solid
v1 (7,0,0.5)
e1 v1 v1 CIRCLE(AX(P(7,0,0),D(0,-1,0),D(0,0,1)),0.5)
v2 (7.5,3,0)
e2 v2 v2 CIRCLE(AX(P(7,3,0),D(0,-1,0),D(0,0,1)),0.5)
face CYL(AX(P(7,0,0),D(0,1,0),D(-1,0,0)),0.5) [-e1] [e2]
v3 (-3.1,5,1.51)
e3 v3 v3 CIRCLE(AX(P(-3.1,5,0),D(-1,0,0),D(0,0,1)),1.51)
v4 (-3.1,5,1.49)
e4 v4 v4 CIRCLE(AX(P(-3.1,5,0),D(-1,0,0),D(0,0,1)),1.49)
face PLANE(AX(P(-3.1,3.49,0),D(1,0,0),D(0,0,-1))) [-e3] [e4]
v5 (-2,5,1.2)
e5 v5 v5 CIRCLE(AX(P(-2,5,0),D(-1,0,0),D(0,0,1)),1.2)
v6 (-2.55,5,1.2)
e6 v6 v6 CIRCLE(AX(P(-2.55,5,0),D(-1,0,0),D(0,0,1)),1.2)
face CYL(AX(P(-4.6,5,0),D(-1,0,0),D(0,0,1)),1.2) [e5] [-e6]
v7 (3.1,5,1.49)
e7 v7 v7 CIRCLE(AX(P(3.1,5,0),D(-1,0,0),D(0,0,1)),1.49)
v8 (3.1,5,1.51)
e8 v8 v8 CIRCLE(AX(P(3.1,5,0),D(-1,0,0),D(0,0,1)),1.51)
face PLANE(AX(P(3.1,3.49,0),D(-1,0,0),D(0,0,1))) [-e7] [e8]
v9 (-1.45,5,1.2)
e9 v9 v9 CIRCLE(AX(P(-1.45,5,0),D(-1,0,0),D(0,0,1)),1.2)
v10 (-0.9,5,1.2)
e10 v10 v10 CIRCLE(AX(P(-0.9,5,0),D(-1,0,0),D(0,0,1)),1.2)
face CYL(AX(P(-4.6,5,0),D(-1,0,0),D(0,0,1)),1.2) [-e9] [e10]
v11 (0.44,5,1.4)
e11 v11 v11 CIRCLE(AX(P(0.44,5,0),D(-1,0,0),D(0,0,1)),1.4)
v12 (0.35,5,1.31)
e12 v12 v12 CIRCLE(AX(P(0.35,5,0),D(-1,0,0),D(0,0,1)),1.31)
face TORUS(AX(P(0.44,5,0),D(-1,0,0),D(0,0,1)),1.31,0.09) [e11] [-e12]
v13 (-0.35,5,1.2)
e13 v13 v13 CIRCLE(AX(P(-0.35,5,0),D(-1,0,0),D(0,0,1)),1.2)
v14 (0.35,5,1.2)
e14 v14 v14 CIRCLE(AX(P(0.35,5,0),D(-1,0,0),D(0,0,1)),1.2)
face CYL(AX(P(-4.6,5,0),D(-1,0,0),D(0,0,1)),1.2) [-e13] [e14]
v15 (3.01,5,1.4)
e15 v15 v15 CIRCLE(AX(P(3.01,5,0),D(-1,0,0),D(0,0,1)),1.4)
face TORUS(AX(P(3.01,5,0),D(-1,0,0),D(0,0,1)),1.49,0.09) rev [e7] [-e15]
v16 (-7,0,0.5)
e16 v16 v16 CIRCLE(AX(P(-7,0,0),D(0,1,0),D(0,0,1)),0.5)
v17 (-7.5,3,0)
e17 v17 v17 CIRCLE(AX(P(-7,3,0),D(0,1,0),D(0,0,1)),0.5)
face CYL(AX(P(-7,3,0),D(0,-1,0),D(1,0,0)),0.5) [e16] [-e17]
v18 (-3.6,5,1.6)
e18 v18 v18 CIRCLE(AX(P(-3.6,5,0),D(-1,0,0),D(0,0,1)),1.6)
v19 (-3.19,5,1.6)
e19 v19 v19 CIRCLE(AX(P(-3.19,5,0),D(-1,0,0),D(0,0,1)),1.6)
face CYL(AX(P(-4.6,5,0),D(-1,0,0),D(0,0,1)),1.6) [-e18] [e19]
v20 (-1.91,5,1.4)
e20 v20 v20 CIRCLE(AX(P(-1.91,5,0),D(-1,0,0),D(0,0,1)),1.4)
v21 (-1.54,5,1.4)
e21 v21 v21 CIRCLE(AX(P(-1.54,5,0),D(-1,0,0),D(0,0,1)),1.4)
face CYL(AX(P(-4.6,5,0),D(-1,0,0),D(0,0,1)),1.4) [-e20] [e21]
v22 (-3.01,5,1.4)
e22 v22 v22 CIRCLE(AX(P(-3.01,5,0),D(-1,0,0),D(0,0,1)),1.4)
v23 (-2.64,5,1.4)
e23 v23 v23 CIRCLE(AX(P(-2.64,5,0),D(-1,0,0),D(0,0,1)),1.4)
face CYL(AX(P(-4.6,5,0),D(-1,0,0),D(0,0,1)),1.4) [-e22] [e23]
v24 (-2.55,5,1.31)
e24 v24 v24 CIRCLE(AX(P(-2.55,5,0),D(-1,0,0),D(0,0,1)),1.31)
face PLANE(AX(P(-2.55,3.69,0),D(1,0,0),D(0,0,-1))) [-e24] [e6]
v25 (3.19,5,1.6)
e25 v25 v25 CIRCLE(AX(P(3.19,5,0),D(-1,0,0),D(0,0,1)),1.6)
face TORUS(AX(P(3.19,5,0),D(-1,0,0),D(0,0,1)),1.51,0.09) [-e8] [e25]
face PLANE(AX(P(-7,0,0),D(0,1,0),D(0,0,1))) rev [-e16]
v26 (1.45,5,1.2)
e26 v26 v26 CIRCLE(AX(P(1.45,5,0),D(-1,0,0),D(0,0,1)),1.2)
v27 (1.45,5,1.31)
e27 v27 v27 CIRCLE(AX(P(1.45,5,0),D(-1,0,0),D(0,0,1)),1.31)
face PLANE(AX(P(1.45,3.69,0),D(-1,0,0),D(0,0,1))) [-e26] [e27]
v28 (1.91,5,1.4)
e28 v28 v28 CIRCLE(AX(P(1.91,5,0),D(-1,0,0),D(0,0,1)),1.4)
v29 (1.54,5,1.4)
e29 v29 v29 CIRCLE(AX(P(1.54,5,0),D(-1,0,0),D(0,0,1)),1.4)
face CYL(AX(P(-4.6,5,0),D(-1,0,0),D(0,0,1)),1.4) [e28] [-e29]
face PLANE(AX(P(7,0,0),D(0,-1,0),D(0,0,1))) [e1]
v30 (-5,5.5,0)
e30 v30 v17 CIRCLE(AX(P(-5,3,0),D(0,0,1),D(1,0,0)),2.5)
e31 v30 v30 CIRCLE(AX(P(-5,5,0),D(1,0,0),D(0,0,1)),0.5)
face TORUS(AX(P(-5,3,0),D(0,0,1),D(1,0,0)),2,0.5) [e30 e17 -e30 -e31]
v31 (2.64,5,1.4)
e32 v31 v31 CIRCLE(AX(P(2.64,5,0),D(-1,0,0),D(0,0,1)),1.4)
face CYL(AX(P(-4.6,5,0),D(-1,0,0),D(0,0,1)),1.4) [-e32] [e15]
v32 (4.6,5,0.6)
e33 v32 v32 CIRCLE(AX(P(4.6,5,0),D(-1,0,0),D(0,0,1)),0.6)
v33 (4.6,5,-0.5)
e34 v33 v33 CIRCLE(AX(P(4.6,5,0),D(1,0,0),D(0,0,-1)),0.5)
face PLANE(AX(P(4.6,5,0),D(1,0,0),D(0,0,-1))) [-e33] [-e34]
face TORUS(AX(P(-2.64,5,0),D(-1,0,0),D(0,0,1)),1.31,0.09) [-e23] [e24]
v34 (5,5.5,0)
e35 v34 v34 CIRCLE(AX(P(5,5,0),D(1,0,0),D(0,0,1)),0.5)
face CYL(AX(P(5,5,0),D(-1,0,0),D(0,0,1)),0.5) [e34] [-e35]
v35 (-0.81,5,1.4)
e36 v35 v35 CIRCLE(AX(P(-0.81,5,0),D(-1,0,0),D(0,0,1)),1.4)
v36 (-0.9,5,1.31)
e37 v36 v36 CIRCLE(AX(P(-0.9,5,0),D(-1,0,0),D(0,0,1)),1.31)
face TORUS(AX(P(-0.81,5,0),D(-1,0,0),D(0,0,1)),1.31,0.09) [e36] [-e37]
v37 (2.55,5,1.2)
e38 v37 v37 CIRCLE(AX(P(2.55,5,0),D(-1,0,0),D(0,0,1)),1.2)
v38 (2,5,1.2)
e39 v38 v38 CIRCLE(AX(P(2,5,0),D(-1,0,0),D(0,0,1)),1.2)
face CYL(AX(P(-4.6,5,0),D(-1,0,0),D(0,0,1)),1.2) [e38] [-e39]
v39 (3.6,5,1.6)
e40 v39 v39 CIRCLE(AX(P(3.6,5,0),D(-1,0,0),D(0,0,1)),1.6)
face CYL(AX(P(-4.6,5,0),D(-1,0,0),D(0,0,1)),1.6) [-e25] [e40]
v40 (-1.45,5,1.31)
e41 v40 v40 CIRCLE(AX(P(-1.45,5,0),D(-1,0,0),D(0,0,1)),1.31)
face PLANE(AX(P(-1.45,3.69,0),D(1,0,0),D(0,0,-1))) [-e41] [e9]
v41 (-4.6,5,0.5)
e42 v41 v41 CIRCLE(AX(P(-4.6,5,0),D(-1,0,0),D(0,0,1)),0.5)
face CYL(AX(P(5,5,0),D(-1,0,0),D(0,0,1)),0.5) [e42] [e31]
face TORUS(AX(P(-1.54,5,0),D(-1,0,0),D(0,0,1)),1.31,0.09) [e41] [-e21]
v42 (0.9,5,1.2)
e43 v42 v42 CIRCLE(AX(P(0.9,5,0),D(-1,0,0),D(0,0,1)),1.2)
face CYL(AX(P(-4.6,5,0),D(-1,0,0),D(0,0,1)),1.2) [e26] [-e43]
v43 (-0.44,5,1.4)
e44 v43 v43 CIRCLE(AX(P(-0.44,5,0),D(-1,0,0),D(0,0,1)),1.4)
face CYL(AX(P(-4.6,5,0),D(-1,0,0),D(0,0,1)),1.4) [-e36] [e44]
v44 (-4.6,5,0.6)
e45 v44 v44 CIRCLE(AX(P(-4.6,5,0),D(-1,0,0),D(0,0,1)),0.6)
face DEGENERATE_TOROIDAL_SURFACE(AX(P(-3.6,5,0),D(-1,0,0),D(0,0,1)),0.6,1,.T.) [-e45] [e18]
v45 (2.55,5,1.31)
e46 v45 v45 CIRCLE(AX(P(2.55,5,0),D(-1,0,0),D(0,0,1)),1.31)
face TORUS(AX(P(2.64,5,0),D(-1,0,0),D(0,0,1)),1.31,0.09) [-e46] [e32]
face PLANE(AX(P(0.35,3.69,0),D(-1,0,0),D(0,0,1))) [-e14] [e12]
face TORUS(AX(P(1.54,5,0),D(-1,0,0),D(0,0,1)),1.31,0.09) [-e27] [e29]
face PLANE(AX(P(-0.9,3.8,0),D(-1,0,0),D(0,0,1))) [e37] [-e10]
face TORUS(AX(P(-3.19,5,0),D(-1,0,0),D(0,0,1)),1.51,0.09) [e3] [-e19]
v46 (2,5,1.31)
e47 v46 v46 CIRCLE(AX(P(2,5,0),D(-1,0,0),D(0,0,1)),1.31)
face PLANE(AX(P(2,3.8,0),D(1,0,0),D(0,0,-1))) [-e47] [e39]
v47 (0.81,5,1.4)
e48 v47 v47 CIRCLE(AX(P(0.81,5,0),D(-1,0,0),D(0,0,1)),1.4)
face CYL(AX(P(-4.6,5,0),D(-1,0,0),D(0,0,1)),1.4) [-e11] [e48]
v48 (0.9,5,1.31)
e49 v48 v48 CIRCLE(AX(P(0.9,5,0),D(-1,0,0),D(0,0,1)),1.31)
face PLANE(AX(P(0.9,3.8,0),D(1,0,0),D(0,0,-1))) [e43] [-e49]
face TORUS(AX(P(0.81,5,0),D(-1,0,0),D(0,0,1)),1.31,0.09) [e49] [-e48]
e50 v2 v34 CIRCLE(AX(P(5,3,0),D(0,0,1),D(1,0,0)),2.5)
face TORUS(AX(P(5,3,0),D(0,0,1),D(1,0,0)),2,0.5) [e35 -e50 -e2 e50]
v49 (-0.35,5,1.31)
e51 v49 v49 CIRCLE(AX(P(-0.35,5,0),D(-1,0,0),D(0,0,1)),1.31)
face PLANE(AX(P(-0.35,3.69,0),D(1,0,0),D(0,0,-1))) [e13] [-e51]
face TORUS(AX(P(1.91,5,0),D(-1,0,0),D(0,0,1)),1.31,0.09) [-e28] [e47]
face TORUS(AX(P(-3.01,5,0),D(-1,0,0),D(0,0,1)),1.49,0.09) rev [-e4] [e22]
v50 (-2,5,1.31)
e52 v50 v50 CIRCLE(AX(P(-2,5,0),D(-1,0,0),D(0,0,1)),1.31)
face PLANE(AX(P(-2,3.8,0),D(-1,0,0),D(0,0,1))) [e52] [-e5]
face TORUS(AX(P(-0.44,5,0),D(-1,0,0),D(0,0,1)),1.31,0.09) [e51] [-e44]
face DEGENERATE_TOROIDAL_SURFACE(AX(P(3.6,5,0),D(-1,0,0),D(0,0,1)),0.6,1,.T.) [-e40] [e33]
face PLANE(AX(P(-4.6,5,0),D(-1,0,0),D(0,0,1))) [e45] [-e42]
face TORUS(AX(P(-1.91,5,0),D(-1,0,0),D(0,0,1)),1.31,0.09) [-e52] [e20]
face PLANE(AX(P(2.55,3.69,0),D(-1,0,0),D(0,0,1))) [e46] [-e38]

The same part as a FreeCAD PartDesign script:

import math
import FreeCAD as App
import Part
import Sketcher

doc = App.newDocument("Part")
body = doc.addObject("PartDesign::Body", "Body")

# Sketch on XZ plane
sketch1 = body.newObject("Sketcher::SketchObject", "Sketch")
sketch1.AttachmentSupport = (doc.getObject("XZ_Plane"), [""])
sketch1.MapMode = "FlatFace"
sketch1.addGeometry(Part.Circle(App.Vector(-7, 0, 0), App.Vector(0, 0, 1), 0.5), False)
sketch1.addConstraint([
    Sketcher.Constraint("PointOnObject", 0, 3, -1),
    Sketcher.Constraint("Diameter", 0, 1.0),
    Sketcher.Constraint("DistanceX", 0, 3, -1, 1, 7.0),
])

# Sketch on XY plane
sketch2 = body.newObject("Sketcher::SketchObject", "Sketch001")
sketch2.AttachmentSupport = (doc.getObject("XY_Plane"), [""])
sketch2.MapMode = "FlatFace"
sketch2.addGeometry([
    Part.LineSegment(App.Vector(7, 0, 0), App.Vector(7, 3, 0)),  # 0
    Part.ArcOfCircle(Part.Circle(App.Vector(5, 3, 0), App.Vector(0, 0, 1), 2), math.radians(0), math.radians(90)),  # 1
    Part.LineSegment(App.Vector(5, 5, 0), App.Vector(-5, 5, 0)),  # 2
    Part.ArcOfCircle(Part.Circle(App.Vector(-5, 3, 0), App.Vector(0, 0, 1), 2), math.radians(90), math.radians(180)),  # 3
    Part.LineSegment(App.Vector(-7, 3, 0), App.Vector(-7, 0, 0)),  # 4
], False)
sketch2.addConstraint([
    Sketcher.Constraint("Tangent", 0, 2, 1, 1),
    Sketcher.Constraint("Tangent", 1, 2, 2, 1),
    Sketcher.Constraint("Tangent", 2, 2, 3, 1),
    Sketcher.Constraint("Tangent", 3, 2, 4, 1),
    Sketcher.Constraint("Vertical", 0),
    Sketcher.Constraint("Horizontal", 2),
    Sketcher.Constraint("Vertical", 4),
    Sketcher.Constraint("Equal", 1, 3),
    Sketcher.Constraint("Symmetric", 0, 1, 4, 2, -1, 1),
    Sketcher.Constraint("PointOnObject", 0, 1, -1),
    Sketcher.Constraint("Radius", 1, 2.0),
    Sketcher.Constraint("DistanceX", 2, 2, 2, 1, 10.0),
    Sketcher.Constraint("DistanceY", 0, 1, 0, 2, 3.0),
])
doc.recompute()

additivepipe = body.newObject("PartDesign::AdditivePipe", "AdditivePipe")
additivepipe.Profile = sketch1
additivepipe.Spine = (sketch2, ["Edge1", "Edge2", "Edge3", "Edge4", "Edge5"])

# Sketch on XY plane
sketch3 = body.newObject("Sketcher::SketchObject", "Sketch002")
sketch3.AttachmentSupport = (doc.getObject("XY_Plane"), [""])
sketch3.MapMode = "FlatFace"
sketch3.addGeometry([
    Part.LineSegment(App.Vector(-4.6, 5, 0), App.Vector(-4.6, 4.4, 0)),  # 0
    Part.ArcOfCircle(Part.Circle(App.Vector(-3.6, 4.4, 0), App.Vector(0, 0, 1), 1), math.radians(-180), math.radians(-90)),  # 1
    Part.LineSegment(App.Vector(-3.6, 3.4, 0), App.Vector(-3.19, 3.4, 0)),  # 2
    Part.ArcOfCircle(Part.Circle(App.Vector(-3.19, 3.49, 0), App.Vector(0, 0, 1), 0.09), math.radians(-90), math.radians(0)),  # 3
    Part.LineSegment(App.Vector(-3.1, 3.49, 0), App.Vector(-3.1, 3.51, 0)),  # 4
    Part.ArcOfCircle(Part.Circle(App.Vector(-3.01, 3.51, 0), App.Vector(0, 0, 1), 0.09), math.radians(90), math.radians(180)),  # 5
    Part.LineSegment(App.Vector(-3.01, 3.6, 0), App.Vector(-2.64, 3.6, 0)),  # 6
    Part.ArcOfCircle(Part.Circle(App.Vector(-2.64, 3.69, 0), App.Vector(0, 0, 1), 0.09), math.radians(-90), math.radians(0)),  # 7
    Part.LineSegment(App.Vector(-2.55, 3.69, 0), App.Vector(-2.55, 3.8, 0)),  # 8
    Part.LineSegment(App.Vector(-2.55, 3.8, 0), App.Vector(-2, 3.8, 0)),  # 9
    Part.LineSegment(App.Vector(-2, 3.8, 0), App.Vector(-2, 3.69, 0)),  # 10
    Part.ArcOfCircle(Part.Circle(App.Vector(-1.91, 3.69, 0), App.Vector(0, 0, 1), 0.09), math.radians(-180), math.radians(-90)),  # 11
    Part.LineSegment(App.Vector(-1.91, 3.6, 0), App.Vector(-1.54, 3.6, 0)),  # 12
    Part.ArcOfCircle(Part.Circle(App.Vector(-1.54, 3.69, 0), App.Vector(0, 0, 1), 0.09), math.radians(-90), math.radians(0)),  # 13
    Part.LineSegment(App.Vector(-1.45, 3.69, 0), App.Vector(-1.45, 3.8, 0)),  # 14
    Part.LineSegment(App.Vector(-1.45, 3.8, 0), App.Vector(-0.9, 3.8, 0)),  # 15
    Part.LineSegment(App.Vector(-0.9, 3.8, 0), App.Vector(-0.9, 3.69, 0)),  # 16
    Part.ArcOfCircle(Part.Circle(App.Vector(-0.81, 3.69, 0), App.Vector(0, 0, 1), 0.09), math.radians(-180), math.radians(-90)),  # 17
    Part.LineSegment(App.Vector(-0.81, 3.6, 0), App.Vector(-0.44, 3.6, 0)),  # 18
    Part.ArcOfCircle(Part.Circle(App.Vector(-0.44, 3.69, 0), App.Vector(0, 0, 1), 0.09), math.radians(-90), math.radians(0)),  # 19
    Part.LineSegment(App.Vector(-0.35, 3.69, 0), App.Vector(-0.35, 3.8, 0)),  # 20
    Part.LineSegment(App.Vector(-0.35, 3.8, 0), App.Vector(0.35, 3.8, 0)),  # 21
    Part.LineSegment(App.Vector(0.35, 3.8, 0), App.Vector(0.35, 3.69, 0)),  # 22
    Part.ArcOfCircle(Part.Circle(App.Vector(0.44, 3.69, 0), App.Vector(0, 0, 1), 0.09), math.radians(-180), math.radians(-90)),  # 23
    Part.LineSegment(App.Vector(0.44, 3.6, 0), App.Vector(0.81, 3.6, 0)),  # 24
    Part.ArcOfCircle(Part.Circle(App.Vector(0.81, 3.69, 0), App.Vector(0, 0, 1), 0.09), math.radians(-90), math.radians(0)),  # 25
    Part.LineSegment(App.Vector(0.9, 3.69, 0), App.Vector(0.9, 3.8, 0)),  # 26
    Part.LineSegment(App.Vector(0.9, 3.8, 0), App.Vector(1.45, 3.8, 0)),  # 27
    Part.LineSegment(App.Vector(1.45, 3.8, 0), App.Vector(1.45, 3.69, 0)),  # 28
    Part.ArcOfCircle(Part.Circle(App.Vector(1.54, 3.69, 0), App.Vector(0, 0, 1), 0.09), math.radians(-180), math.radians(-90)),  # 29
    Part.LineSegment(App.Vector(1.54, 3.6, 0), App.Vector(1.91, 3.6, 0)),  # 30
    Part.ArcOfCircle(Part.Circle(App.Vector(1.91, 3.69, 0), App.Vector(0, 0, 1), 0.09), math.radians(-90), math.radians(0)),  # 31
    Part.LineSegment(App.Vector(2, 3.69, 0), App.Vector(2, 3.8, 0)),  # 32
    Part.LineSegment(App.Vector(2, 3.8, 0), App.Vector(2.55, 3.8, 0)),  # 33
    Part.LineSegment(App.Vector(2.55, 3.8, 0), App.Vector(2.55, 3.69, 0)),  # 34
    Part.ArcOfCircle(Part.Circle(App.Vector(2.64, 3.69, 0), App.Vector(0, 0, 1), 0.09), math.radians(-180), math.radians(-90)),  # 35
    Part.LineSegment(App.Vector(2.64, 3.6, 0), App.Vector(3.01, 3.6, 0)),  # 36
    Part.ArcOfCircle(Part.Circle(App.Vector(3.01, 3.51, 0), App.Vector(0, 0, 1), 0.09), math.radians(0), math.radians(90)),  # 37
    Part.LineSegment(App.Vector(3.1, 3.51, 0), App.Vector(3.1, 3.49, 0)),  # 38
    Part.ArcOfCircle(Part.Circle(App.Vector(3.19, 3.49, 0), App.Vector(0, 0, 1), 0.09), math.radians(-180), math.radians(-90)),  # 39
    Part.LineSegment(App.Vector(3.19, 3.4, 0), App.Vector(3.6, 3.4, 0)),  # 40
    Part.ArcOfCircle(Part.Circle(App.Vector(3.6, 4.4, 0), App.Vector(0, 0, 1), 1), math.radians(-90), math.radians(0)),  # 41
    Part.LineSegment(App.Vector(4.6, 4.4, 0), App.Vector(4.6, 5, 0)),  # 42
    Part.LineSegment(App.Vector(4.6, 5, 0), App.Vector(-4.6, 5, 0)),  # 43
], False)
sketch3.addGeometry(Part.LineSegment(App.Vector(-4.6, 5, 0), App.Vector(4.6, 5, 0)), True)  # axis
sketch3.addConstraint([
    Sketcher.Constraint("Tangent", 0, 2, 1, 1),
    Sketcher.Constraint("Tangent", 1, 2, 2, 1),
    Sketcher.Constraint("Tangent", 2, 2, 3, 1),
    Sketcher.Constraint("Tangent", 3, 2, 4, 1),
    Sketcher.Constraint("Tangent", 4, 2, 5, 2),
    Sketcher.Constraint("Tangent", 5, 1, 6, 1),
    Sketcher.Constraint("Tangent", 6, 2, 7, 1),
    Sketcher.Constraint("Tangent", 7, 2, 8, 1),
    Sketcher.Constraint("Coincident", 8, 2, 9, 1),
    Sketcher.Constraint("Coincident", 9, 2, 10, 1),
    Sketcher.Constraint("Tangent", 10, 2, 11, 1),
    Sketcher.Constraint("Tangent", 11, 2, 12, 1),
    Sketcher.Constraint("Tangent", 12, 2, 13, 1),
    Sketcher.Constraint("Tangent", 13, 2, 14, 1),
    Sketcher.Constraint("Coincident", 14, 2, 15, 1),
    Sketcher.Constraint("Coincident", 15, 2, 16, 1),
    Sketcher.Constraint("Tangent", 16, 2, 17, 1),
    Sketcher.Constraint("Tangent", 17, 2, 18, 1),
    Sketcher.Constraint("Tangent", 18, 2, 19, 1),
    Sketcher.Constraint("Tangent", 19, 2, 20, 1),
    Sketcher.Constraint("Coincident", 20, 2, 21, 1),
    Sketcher.Constraint("Coincident", 21, 2, 22, 1),
    Sketcher.Constraint("Tangent", 22, 2, 23, 1),
    Sketcher.Constraint("Tangent", 23, 2, 24, 1),
    Sketcher.Constraint("Tangent", 24, 2, 25, 1),
    Sketcher.Constraint("Tangent", 25, 2, 26, 1),
    Sketcher.Constraint("Coincident", 26, 2, 27, 1),
    Sketcher.Constraint("Coincident", 27, 2, 28, 1),
    Sketcher.Constraint("Tangent", 28, 2, 29, 1),
    Sketcher.Constraint("Tangent", 29, 2, 30, 1),
    Sketcher.Constraint("Tangent", 30, 2, 31, 1),
    Sketcher.Constraint("Tangent", 31, 2, 32, 1),
    Sketcher.Constraint("Coincident", 32, 2, 33, 1),
    Sketcher.Constraint("Coincident", 33, 2, 34, 1),
    Sketcher.Constraint("Tangent", 34, 2, 35, 1),
    Sketcher.Constraint("Tangent", 35, 2, 36, 1),
    Sketcher.Constraint("Tangent", 36, 2, 37, 2),
    Sketcher.Constraint("Tangent", 37, 1, 38, 1),
    Sketcher.Constraint("Tangent", 38, 2, 39, 1),
    Sketcher.Constraint("Tangent", 39, 2, 40, 1),
    Sketcher.Constraint("Tangent", 40, 2, 41, 1),
    Sketcher.Constraint("Tangent", 41, 2, 42, 1),
    Sketcher.Constraint("Coincident", 42, 2, 43, 1),
    Sketcher.Constraint("Coincident", 43, 2, 0, 1),
    Sketcher.Constraint("Vertical", 0),
    Sketcher.Constraint("Horizontal", 2),
    Sketcher.Constraint("Vertical", 4),
    Sketcher.Constraint("Horizontal", 6),
    Sketcher.Constraint("Vertical", 8),
    Sketcher.Constraint("Horizontal", 9),
    Sketcher.Constraint("Vertical", 10),
    Sketcher.Constraint("Horizontal", 12),
    Sketcher.Constraint("Vertical", 14),
    Sketcher.Constraint("Horizontal", 15),
    Sketcher.Constraint("Vertical", 16),
    Sketcher.Constraint("Horizontal", 18),
    Sketcher.Constraint("Vertical", 20),
    Sketcher.Constraint("Horizontal", 21),
    Sketcher.Constraint("Vertical", 22),
    Sketcher.Constraint("Horizontal", 24),
    Sketcher.Constraint("Vertical", 26),
    Sketcher.Constraint("Horizontal", 27),
    Sketcher.Constraint("Vertical", 28),
    Sketcher.Constraint("Horizontal", 30),
    Sketcher.Constraint("Vertical", 32),
    Sketcher.Constraint("Horizontal", 33),
    Sketcher.Constraint("Vertical", 34),
    Sketcher.Constraint("Horizontal", 36),
    Sketcher.Constraint("Vertical", 38),
    Sketcher.Constraint("Horizontal", 40),
    Sketcher.Constraint("Vertical", 42),
    Sketcher.Constraint("Horizontal", 43),
    Sketcher.Constraint("Horizontal", 44),
    Sketcher.Constraint("Coincident", 44, 1, 43, 2),
    Sketcher.Constraint("Equal", 3, 5),
    Sketcher.Constraint("Equal", 5, 7),
    Sketcher.Constraint("Equal", 7, 11),
    Sketcher.Constraint("Equal", 11, 13),
    Sketcher.Constraint("Equal", 13, 17),
    Sketcher.Constraint("Equal", 17, 19),
    Sketcher.Constraint("Equal", 19, 23),
    Sketcher.Constraint("Equal", 23, 25),
    Sketcher.Constraint("Equal", 25, 29),
    Sketcher.Constraint("Equal", 29, 31),
    Sketcher.Constraint("Equal", 31, 35),
    Sketcher.Constraint("Equal", 35, 37),
    Sketcher.Constraint("Equal", 37, 39),
    Sketcher.Constraint("Equal", 1, 41),
    Sketcher.Constraint("Symmetric", 19, 3, 23, 3, -2),
    Sketcher.Constraint("Symmetric", 13, 3, 29, 3, -2),
    Sketcher.Constraint("Symmetric", 7, 3, 35, 3, -2),
    Sketcher.Constraint("Symmetric", 3, 3, 39, 3, -2),
    Sketcher.Constraint("Symmetric", 15, 2, 26, 2, -2),
    Sketcher.Constraint("Symmetric", 9, 2, 32, 2, -2),
    Sketcher.Constraint("Horizontal", 7, 3, 11, 3),
    Sketcher.Constraint("Horizontal", 13, 3, 17, 3),
    Sketcher.Constraint("Horizontal", 9, 2, 14, 2),
    Sketcher.Constraint("Horizontal", 15, 2, 20, 2),
    Sketcher.Constraint("Vertical", 41, 2, 44, 2),
    Sketcher.Constraint("Equal", 6, 12),
    Sketcher.Constraint("Equal", 9, 15),
    Sketcher.Constraint("Equal", 12, 18),
    Sketcher.Constraint("Equal", 2, 40),
    Sketcher.Constraint("Radius", 1, 1.0),
    Sketcher.Constraint("Radius", 3, 0.09),
    Sketcher.Constraint("DistanceX", 21, 1, 21, 2, 0.7),
    Sketcher.Constraint("DistanceX", 43, 2, 43, 1, 9.2),
    Sketcher.Constraint("DistanceY", 0, 2, 0, 1, 0.6),
    Sketcher.Constraint("DistanceX", 9, 2, -1, 1, 2.0),
    Sketcher.Constraint("DistanceY", -1, 1, 42, 2, 5.0),
    Sketcher.Constraint("DistanceX", 2, 1, 2, 2, 0.41),
    Sketcher.Constraint("DistanceY", 4, 1, 4, 2, 0.02),
    Sketcher.Constraint("DistanceY", 8, 1, 8, 2, 0.11),
])
revolution = body.newObject("PartDesign::Revolution", "Revolution")
revolution.Profile = sketch3
revolution.ReferenceAxis = (sketch3, ["Axis0"])
revolution.Angle = 360

doc.recompute()
